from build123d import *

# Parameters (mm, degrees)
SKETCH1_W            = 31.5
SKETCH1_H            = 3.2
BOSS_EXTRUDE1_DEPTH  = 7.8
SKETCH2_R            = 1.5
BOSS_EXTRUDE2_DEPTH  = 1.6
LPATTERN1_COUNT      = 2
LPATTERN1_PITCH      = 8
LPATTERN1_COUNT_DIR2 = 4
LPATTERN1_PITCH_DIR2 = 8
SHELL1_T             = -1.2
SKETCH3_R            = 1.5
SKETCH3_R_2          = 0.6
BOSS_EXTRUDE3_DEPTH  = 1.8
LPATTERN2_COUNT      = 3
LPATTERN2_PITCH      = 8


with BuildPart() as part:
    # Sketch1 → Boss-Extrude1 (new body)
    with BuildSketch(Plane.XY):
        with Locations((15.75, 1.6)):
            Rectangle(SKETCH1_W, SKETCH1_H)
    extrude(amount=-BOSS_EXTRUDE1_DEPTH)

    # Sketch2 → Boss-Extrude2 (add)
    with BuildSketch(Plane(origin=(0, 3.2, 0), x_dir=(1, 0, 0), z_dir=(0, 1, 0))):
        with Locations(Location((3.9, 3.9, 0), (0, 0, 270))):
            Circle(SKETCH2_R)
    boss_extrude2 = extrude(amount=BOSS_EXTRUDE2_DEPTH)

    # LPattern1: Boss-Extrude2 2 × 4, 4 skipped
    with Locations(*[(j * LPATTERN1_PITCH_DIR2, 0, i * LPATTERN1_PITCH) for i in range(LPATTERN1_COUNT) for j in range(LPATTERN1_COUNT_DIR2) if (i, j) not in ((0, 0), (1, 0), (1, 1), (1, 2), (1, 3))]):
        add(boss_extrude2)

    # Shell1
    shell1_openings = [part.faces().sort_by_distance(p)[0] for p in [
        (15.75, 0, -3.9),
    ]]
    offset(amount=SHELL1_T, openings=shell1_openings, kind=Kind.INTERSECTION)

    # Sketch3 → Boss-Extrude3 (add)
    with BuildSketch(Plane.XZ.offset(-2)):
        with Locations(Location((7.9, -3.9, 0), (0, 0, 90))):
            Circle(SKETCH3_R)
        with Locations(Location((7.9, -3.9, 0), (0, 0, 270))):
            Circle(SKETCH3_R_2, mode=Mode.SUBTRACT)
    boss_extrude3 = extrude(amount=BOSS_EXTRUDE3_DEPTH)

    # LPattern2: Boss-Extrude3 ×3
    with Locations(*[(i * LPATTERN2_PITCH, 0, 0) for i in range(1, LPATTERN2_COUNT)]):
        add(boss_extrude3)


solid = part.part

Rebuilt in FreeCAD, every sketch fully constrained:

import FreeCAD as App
import Part
import Sketcher
from FreeCAD import Vector
Q = App.Units.Quantity


def faces_at(feature, points):
    """Names of the faces that lie closest to the given points."""
    faces = feature.Shape.Faces
    near = lambda p: min(range(len(faces)), key=lambda i: faces[i].distToShape(Part.Vertex(*p))[0])
    return sorted({f"Face{near(p) + 1}" for p in points})


def add_polygon(sketch, points):
    """Adds a closed chain of lines whose ends are joined by coincident constraints."""
    first, n = sketch.GeometryCount, len(points)
    for a, b in zip(points, points[1:] + points[:1]):
        sketch.addGeometry(Part.LineSegment(App.Vector(*a, 0), App.Vector(*b, 0)), False)
    for i in range(n):
        sketch.addConstraint(Sketcher.Constraint("Coincident", first + i, 2, first + (i + 1) % n, 1))

doc = App.newDocument("Part")
body = doc.addObject("PartDesign::Body", "Body")

sketch1 = doc.addObject("Sketcher::SketchObject", "Sketch")
body.addObject(sketch1)
sketch1.AttachmentSupport = (doc.XY_Plane, [""])
sketch1.MapMode = "FlatFace"
add_polygon(sketch1, [(0, 3.2), (0, 0), (31.5, 0), (31.5, 3.2)])
sketch1.addConstraint(Sketcher.Constraint("Vertical", 0))
sketch1.addConstraint(Sketcher.Constraint("Horizontal", 1))
sketch1.addConstraint(Sketcher.Constraint("Vertical", 2))
sketch1.addConstraint(Sketcher.Constraint("Horizontal", 3))
sketch1.addConstraint(Sketcher.Constraint("Coincident", 0, 2, -1, 1))
sketch1.addConstraint(Sketcher.Constraint("DistanceX", 1, 1, 1, 2, Q("31.5 mm")))
sketch1.addConstraint(Sketcher.Constraint("DistanceY", 0, 2, 0, 1, Q("3.2 mm")))
pad1 = doc.addObject("PartDesign::Pad", "Pad")
body.addObject(pad1)
pad1.Profile = sketch1
pad1.Length = 7.8
pad1.Reversed = True

sketch2 = doc.addObject("Sketcher::SketchObject", "Sketch001")
body.addObject(sketch2)
sketch2.AttachmentSupport = (doc.XZ_Plane, [""])
sketch2.MapMode = "FlatFace"
sketch2.AttachmentOffset = App.Placement(Vector(0, 0, -3.2), App.Rotation())
sketch2.addGeometry(Part.Circle(Vector(3.9, -3.9, 0), Vector(0, 0, 1), 1.5), False)
sketch2.addConstraint(Sketcher.Constraint("Diameter", 0, Q("3 mm")))
sketch2.addConstraint(Sketcher.Constraint("DistanceX", -1, 1, 0, 3, Q("3.9 mm")))
sketch2.addConstraint(Sketcher.Constraint("DistanceY", 0, 3, -1, 1, Q("3.9 mm")))
pad2 = doc.addObject("PartDesign::Pad", "Pad001")
body.addObject(pad2)
pad2.Profile = sketch2
pad2.Length = 1.6
pad2.Reversed = True
doc.recompute()

linearpattern = doc.addObject("PartDesign::LinearPattern", "LinearPattern")
body.addObject(linearpattern)
linearpattern.Originals = [pad2]
linearpattern.Direction = (doc.X_Axis, [""])
linearpattern.Mode = "offset"
linearpattern.Offset = 8
linearpattern.Occurrences = 4
body.Tip = linearpattern
doc.recompute()

thickness = doc.addObject("PartDesign::Thickness", "Thickness")
body.addObject(thickness)
thickness.Base = (linearpattern, faces_at(linearpattern, [(15.75, 0, -3.9)]))
thickness.Value = 1.2
thickness.Reversed = True
thickness.Join = "Intersection"

sketch3 = doc.addObject("Sketcher::SketchObject", "Sketch002")
body.addObject(sketch3)
sketch3.AttachmentSupport = (doc.XZ_Plane, [""])
sketch3.MapMode = "FlatFace"
sketch3.AttachmentOffset = App.Placement(Vector(0, 0, -2), App.Rotation())
sketch3.addGeometry(Part.Circle(Vector(7.9, -3.9, 0), Vector(0, 0, 1), 1.5), False)
sketch3.addGeometry(Part.Circle(Vector(7.9, -3.9, 0), Vector(0, 0, 1), 0.6), False)
sketch3.addConstraint(Sketcher.Constraint("Coincident", 1, 3, 0, 3))
sketch3.addConstraint(Sketcher.Constraint("Diameter", 0, Q("3 mm")))
sketch3.addConstraint(Sketcher.Constraint("Diameter", 1, Q("1.2 mm")))
sketch3.addConstraint(Sketcher.Constraint("DistanceX", -1, 1, 0, 3, Q("7.9 mm")))
sketch3.addConstraint(Sketcher.Constraint("DistanceY", 0, 3, -1, 1, Q("3.9 mm")))
pad3 = doc.addObject("PartDesign::Pad", "Pad002")
body.addObject(pad3)
pad3.Profile = sketch3
pad3.Length = 1.8
doc.recompute()

linearpattern2 = doc.addObject("PartDesign::LinearPattern", "LinearPattern001")
body.addObject(linearpattern2)
linearpattern2.Originals = [pad3]
linearpattern2.Direction = (doc.X_Axis, [""])
linearpattern2.Mode = "offset"
linearpattern2.Offset = 8
linearpattern2.Occurrences = 3
body.Tip = linearpattern2

doc.recompute()
